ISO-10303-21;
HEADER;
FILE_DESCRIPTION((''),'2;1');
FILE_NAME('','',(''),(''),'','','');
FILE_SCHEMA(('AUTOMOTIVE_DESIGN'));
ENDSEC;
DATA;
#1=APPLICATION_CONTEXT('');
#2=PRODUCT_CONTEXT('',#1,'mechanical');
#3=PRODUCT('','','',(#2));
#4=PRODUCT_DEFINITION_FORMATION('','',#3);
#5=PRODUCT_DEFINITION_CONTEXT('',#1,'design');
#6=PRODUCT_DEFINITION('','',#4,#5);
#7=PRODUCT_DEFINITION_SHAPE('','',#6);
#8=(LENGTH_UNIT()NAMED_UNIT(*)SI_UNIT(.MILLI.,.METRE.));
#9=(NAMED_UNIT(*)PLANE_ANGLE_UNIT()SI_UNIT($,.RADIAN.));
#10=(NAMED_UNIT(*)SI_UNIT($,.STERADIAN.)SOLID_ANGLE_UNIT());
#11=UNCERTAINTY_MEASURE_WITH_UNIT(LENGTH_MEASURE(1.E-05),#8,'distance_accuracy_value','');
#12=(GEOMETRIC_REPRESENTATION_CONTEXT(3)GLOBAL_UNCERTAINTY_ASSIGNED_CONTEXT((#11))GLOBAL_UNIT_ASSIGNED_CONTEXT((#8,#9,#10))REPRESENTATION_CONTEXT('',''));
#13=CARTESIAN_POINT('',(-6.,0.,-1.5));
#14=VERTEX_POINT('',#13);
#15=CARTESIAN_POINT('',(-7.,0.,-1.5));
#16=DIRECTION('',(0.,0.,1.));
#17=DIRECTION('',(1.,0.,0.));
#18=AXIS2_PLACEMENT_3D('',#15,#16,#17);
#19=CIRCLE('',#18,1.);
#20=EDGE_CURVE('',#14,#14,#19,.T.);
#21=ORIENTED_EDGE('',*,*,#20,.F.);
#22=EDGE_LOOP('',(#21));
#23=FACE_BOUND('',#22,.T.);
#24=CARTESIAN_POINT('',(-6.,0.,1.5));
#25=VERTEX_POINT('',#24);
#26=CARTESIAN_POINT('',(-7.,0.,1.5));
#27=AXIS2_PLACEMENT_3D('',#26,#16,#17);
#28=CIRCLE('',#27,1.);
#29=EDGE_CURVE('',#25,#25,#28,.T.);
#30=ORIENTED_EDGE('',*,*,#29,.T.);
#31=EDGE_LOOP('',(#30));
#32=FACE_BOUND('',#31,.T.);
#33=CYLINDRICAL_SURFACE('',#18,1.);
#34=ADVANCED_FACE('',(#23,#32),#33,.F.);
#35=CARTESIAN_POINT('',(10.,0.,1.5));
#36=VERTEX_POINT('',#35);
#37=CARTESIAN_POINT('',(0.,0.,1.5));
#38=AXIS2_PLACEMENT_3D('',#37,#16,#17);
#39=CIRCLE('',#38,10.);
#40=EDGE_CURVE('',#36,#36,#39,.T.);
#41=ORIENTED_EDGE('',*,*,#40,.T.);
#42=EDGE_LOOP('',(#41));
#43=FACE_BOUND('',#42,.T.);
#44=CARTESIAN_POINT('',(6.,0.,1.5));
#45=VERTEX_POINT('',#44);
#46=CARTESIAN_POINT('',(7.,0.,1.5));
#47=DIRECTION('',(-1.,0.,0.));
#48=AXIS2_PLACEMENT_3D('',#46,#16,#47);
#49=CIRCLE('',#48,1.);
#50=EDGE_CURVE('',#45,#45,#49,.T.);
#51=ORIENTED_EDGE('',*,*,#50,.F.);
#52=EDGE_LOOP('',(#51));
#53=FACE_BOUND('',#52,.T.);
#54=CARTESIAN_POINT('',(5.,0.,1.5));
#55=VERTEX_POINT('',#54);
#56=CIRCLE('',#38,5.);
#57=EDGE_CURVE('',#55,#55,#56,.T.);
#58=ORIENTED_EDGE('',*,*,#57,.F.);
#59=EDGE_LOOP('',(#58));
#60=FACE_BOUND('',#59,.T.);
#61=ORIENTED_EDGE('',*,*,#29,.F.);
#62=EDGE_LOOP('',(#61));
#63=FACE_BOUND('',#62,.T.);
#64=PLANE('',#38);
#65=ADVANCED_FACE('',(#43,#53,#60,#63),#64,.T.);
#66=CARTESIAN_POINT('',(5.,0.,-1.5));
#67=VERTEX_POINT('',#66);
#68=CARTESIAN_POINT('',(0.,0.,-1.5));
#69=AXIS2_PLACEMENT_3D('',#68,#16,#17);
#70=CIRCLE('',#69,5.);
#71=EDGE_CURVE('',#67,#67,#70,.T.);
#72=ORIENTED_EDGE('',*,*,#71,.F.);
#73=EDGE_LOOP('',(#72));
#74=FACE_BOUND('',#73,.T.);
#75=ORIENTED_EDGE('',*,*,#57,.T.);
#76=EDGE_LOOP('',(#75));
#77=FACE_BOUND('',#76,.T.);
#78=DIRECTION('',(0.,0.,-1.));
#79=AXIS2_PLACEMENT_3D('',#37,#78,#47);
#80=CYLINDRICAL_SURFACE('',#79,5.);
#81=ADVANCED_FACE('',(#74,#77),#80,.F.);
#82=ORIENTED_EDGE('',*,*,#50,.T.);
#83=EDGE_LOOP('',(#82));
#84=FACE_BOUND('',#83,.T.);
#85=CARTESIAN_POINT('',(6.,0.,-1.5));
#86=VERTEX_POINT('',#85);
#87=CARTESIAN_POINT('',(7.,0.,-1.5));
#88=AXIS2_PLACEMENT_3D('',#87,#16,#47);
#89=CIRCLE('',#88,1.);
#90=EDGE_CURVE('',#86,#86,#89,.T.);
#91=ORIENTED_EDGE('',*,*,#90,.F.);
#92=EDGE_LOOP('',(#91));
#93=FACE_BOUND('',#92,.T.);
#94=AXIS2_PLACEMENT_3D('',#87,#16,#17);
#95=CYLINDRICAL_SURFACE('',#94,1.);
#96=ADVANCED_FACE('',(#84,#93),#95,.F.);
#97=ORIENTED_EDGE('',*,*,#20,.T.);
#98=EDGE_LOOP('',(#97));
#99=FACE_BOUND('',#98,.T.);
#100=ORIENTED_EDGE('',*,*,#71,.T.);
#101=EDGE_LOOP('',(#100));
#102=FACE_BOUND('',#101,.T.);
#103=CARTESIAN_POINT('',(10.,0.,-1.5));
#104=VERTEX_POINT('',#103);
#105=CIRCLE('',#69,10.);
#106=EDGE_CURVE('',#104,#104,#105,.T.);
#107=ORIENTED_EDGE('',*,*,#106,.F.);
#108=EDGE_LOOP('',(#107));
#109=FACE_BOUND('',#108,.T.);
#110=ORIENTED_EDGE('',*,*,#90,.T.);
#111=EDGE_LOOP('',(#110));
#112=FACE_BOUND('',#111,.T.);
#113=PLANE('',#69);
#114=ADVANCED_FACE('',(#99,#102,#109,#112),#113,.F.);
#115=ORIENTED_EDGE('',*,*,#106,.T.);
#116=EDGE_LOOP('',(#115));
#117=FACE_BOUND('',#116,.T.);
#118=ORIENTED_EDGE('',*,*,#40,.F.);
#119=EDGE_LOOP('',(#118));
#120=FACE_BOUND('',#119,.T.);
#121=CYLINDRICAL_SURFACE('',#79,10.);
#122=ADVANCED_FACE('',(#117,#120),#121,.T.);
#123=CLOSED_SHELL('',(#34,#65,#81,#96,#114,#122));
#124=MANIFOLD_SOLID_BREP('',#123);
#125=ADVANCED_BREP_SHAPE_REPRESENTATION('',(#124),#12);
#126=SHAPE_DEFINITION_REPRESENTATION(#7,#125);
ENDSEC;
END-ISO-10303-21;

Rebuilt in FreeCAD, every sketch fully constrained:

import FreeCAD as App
import Part
import Sketcher
from FreeCAD import Vector
Q = App.Units.Quantity

doc = App.newDocument("Part")
body = doc.addObject("PartDesign::Body", "Body")

# Sketch on XY plane
sketch1 = body.newObject("Sketcher::SketchObject", "Sketch")
sketch1.AttachmentSupport = (doc.getObject("XY_Plane"), [""])
sketch1.MapMode = "FlatFace"
sketch1.addGeometry([
    Part.Circle(Vector(0, 0, 0), Vector(0, 0, 1), 10),
    Part.Circle(Vector(0, 0, 0), Vector(0, 0, 1), 5),
], False)
sketch1.addConstraint([
    Sketcher.Constraint("Coincident", 0, 3, -1, 1),
    Sketcher.Constraint("Coincident", 1, 3, -1, 1),
    Sketcher.Constraint("Diameter", 0, Q("20 mm")),
    Sketcher.Constraint("Diameter", 1, Q("10 mm")),
])
pad1 = body.newObject("PartDesign::Pad", "Pad")
pad1.Profile = sketch1
pad1.Length = 3
pad1.Midplane = True

# Sketch on XY plane
sketch2 = body.newObject("Sketcher::SketchObject", "Sketch001")
sketch2.AttachmentSupport = (doc.getObject("XY_Plane"), [""])
sketch2.MapMode = "FlatFace"
sketch2.AttachmentOffset = App.Placement(Vector(0, 0, 1.5), App.Rotation())
sketch2.addGeometry(Part.Circle(Vector(-7, 0, 0), Vector(0, 0, 1), 1), False)
sketch2.addConstraint([
    Sketcher.Constraint("PointOnObject", 0, 3, -1),
    Sketcher.Constraint("Diameter", 0, Q("2 mm")),
    Sketcher.Constraint("DistanceX", 0, 3, -1, 1, Q("7 mm")),
])
pocket1 = body.newObject("PartDesign::Pocket", "Pocket")
pocket1.Profile = sketch2
pocket1.Type = "ThroughAll"
doc.recompute()

polarpattern = body.newObject("PartDesign::PolarPattern", "PolarPattern")
polarpattern.Originals = [pocket1]
polarpattern.Axis = (doc.getObject("Z_Axis"), [""])
polarpattern.Angle = 360
polarpattern.Occurrences = 2
body.Tip = polarpattern

doc.recompute()
